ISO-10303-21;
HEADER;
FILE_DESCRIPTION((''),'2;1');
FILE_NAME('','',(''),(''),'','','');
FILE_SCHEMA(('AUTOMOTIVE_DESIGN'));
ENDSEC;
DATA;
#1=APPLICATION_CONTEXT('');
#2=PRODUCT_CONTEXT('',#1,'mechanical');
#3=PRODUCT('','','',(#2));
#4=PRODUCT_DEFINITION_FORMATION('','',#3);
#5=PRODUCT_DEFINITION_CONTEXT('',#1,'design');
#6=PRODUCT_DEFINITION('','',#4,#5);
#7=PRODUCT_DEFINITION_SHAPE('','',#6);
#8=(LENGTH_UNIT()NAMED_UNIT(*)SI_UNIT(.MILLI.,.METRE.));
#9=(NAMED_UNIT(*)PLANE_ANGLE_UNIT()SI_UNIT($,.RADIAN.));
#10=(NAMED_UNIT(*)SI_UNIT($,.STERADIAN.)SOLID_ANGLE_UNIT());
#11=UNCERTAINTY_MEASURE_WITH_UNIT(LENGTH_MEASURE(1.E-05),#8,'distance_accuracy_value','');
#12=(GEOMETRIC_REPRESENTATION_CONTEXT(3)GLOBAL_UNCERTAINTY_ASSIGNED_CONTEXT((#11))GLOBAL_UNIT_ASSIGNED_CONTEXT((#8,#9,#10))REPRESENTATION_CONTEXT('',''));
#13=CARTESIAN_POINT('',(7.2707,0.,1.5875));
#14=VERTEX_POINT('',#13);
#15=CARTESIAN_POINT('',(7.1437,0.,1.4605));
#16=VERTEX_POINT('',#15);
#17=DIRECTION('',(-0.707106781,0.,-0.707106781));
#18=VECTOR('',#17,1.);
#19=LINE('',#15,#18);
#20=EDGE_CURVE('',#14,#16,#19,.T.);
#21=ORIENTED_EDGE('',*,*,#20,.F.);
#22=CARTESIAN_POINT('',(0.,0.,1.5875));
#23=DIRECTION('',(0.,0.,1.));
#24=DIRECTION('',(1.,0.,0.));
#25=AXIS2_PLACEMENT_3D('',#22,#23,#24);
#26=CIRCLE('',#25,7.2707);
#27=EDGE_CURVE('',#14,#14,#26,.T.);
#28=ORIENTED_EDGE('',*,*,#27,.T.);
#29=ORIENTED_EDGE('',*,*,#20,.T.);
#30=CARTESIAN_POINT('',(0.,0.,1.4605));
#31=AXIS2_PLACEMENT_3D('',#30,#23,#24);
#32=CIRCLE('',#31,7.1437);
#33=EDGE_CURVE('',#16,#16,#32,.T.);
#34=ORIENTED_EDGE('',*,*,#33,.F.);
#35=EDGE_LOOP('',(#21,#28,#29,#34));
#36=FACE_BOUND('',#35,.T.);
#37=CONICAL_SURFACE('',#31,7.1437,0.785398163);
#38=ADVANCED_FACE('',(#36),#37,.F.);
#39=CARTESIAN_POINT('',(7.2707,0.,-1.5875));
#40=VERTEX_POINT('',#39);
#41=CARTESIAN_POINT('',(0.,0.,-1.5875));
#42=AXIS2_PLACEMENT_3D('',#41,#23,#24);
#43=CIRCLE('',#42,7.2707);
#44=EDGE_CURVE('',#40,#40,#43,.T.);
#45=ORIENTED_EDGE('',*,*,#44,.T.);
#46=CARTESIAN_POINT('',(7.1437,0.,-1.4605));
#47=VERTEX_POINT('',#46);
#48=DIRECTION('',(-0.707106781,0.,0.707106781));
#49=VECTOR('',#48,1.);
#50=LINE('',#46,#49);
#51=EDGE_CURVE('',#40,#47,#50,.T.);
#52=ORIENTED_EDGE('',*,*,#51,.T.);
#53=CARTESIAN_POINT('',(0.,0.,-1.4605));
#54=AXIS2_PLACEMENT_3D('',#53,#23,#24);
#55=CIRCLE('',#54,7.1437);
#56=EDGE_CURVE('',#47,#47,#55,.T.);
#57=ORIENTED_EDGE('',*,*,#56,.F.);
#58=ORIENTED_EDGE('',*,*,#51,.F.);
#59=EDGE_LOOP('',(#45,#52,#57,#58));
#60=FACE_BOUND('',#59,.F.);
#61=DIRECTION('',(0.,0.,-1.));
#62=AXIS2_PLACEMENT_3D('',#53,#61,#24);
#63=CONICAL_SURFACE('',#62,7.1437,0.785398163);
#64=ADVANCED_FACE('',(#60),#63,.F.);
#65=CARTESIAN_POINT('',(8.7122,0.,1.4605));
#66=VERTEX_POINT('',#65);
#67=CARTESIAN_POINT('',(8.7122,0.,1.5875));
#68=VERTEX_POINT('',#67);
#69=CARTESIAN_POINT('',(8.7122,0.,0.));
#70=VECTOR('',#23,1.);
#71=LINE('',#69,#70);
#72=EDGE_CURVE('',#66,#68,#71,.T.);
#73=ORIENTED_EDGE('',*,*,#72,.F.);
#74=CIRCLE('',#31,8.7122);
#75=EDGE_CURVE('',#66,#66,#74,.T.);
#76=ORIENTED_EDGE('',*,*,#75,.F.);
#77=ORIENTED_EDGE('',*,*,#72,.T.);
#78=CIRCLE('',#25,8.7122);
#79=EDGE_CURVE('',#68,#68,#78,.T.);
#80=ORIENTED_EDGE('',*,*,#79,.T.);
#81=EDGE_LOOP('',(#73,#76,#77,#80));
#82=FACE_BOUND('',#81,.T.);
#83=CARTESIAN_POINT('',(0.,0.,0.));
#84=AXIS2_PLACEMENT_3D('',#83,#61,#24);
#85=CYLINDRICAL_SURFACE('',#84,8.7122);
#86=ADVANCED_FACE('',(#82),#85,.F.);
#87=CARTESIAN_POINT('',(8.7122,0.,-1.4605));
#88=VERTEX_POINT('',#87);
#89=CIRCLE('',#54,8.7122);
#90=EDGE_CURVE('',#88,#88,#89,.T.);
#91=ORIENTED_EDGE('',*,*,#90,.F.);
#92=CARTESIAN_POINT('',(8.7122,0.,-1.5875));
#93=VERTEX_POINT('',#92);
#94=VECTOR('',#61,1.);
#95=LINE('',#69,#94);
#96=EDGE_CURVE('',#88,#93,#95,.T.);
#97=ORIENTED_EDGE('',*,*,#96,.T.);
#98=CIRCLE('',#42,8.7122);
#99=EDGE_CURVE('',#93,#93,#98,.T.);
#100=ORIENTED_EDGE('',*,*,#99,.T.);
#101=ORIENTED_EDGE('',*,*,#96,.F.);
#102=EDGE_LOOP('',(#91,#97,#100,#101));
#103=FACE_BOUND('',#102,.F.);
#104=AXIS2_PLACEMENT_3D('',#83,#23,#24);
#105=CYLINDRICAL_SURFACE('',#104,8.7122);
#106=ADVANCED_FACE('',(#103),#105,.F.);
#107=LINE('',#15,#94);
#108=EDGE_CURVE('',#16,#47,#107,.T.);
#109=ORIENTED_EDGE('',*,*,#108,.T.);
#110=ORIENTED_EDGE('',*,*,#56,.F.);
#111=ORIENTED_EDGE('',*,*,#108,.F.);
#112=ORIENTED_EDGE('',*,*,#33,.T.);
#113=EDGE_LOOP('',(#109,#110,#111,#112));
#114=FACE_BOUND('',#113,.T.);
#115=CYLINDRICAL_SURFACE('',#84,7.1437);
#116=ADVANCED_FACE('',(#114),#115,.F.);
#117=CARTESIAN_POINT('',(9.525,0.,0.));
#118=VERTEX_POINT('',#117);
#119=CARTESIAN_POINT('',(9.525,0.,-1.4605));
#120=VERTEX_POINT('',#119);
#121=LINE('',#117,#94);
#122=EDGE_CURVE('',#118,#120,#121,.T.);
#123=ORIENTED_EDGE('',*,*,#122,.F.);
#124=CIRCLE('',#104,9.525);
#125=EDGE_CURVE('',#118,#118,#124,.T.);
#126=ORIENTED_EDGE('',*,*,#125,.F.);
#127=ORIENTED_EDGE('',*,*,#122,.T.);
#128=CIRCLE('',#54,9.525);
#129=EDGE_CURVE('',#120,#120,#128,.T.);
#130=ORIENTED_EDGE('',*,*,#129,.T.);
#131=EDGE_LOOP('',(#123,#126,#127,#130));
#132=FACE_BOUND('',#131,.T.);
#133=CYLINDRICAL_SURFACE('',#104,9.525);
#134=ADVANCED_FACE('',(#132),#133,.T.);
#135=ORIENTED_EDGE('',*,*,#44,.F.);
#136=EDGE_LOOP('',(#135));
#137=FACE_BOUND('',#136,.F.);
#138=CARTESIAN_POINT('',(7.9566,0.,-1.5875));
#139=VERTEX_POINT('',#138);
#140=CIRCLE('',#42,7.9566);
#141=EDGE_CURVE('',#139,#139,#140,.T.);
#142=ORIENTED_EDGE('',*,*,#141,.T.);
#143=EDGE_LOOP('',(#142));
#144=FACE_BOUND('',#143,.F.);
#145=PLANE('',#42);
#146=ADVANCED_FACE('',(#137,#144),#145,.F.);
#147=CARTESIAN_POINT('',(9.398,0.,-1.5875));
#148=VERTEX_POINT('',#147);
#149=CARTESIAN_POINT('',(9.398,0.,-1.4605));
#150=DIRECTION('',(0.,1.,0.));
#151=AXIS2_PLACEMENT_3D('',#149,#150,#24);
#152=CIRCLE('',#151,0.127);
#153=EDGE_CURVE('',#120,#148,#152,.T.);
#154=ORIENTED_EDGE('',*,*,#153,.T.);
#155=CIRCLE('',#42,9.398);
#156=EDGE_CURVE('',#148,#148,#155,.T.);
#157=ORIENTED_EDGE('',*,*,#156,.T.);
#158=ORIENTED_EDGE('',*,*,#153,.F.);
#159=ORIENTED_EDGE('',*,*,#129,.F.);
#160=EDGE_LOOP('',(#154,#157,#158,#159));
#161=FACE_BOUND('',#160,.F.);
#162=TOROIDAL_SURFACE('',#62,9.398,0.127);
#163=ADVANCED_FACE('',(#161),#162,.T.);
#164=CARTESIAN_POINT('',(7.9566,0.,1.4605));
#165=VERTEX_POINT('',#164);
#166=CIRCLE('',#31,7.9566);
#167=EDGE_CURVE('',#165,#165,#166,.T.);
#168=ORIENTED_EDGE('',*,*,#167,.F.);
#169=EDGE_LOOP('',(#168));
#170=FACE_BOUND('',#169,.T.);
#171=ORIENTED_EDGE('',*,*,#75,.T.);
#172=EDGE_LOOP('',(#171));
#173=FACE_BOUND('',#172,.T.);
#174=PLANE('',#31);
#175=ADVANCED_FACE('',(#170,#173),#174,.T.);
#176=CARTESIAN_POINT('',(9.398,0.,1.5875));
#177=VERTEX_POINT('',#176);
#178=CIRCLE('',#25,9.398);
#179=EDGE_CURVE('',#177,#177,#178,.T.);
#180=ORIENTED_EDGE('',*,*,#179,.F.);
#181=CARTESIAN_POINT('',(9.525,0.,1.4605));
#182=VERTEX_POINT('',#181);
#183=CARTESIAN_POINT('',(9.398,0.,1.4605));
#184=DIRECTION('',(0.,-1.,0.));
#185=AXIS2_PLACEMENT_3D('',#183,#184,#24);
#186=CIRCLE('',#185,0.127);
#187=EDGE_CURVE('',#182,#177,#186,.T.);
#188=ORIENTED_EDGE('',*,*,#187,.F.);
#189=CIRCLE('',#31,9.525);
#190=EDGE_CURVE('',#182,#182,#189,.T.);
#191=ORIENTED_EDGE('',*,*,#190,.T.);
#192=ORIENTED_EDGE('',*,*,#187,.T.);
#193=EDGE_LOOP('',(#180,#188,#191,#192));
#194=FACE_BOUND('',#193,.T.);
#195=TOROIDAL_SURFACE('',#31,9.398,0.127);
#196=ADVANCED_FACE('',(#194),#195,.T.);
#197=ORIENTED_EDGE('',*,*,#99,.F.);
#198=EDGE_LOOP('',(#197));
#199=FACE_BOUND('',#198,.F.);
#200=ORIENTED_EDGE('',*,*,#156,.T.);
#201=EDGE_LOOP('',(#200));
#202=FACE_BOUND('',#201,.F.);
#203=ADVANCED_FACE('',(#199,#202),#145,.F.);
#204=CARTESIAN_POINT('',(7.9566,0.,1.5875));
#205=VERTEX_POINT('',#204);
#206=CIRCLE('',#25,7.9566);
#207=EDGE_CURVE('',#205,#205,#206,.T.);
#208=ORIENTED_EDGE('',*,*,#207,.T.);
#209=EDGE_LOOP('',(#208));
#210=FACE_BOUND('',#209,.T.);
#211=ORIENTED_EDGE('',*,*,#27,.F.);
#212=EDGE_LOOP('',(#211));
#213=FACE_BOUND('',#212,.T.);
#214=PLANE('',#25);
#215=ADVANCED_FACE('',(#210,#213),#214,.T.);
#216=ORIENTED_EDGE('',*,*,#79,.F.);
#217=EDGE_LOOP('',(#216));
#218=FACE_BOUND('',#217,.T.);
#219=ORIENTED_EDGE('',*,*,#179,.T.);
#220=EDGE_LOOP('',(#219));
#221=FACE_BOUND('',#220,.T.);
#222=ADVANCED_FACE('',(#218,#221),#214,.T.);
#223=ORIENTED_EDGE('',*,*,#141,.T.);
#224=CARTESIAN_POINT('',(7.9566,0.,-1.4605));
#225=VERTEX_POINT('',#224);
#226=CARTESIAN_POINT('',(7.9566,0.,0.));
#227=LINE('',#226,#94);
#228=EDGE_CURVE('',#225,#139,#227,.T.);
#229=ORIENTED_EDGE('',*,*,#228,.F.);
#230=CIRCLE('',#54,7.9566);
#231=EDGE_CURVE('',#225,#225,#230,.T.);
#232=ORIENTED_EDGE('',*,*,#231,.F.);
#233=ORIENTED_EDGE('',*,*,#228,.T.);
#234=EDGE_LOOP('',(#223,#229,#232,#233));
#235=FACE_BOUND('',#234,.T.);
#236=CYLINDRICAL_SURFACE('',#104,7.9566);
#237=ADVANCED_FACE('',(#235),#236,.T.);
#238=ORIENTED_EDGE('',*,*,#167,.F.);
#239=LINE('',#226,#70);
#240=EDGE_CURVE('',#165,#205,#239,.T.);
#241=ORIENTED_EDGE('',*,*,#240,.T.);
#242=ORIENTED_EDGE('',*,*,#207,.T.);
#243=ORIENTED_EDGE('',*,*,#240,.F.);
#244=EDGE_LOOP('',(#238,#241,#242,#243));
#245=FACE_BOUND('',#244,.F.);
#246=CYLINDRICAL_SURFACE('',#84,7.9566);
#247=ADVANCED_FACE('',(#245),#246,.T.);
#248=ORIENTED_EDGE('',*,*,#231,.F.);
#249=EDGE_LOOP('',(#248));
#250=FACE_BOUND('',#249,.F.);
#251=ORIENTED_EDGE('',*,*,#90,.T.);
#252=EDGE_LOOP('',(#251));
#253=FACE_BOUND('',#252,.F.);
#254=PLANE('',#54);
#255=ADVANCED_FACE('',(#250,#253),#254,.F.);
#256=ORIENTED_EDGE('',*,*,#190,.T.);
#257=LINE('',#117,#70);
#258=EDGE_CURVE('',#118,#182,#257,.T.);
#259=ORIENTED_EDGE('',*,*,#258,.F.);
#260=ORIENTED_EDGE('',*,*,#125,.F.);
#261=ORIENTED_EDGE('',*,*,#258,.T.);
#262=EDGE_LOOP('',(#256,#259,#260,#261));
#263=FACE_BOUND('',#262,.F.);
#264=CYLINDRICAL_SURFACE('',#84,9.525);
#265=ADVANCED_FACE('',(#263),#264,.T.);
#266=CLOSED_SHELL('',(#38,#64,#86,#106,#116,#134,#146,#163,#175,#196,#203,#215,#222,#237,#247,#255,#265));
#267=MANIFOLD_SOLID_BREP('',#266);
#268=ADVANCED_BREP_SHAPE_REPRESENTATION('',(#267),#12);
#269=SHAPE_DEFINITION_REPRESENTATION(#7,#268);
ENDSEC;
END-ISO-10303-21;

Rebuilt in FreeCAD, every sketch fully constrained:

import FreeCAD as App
import Part
import Sketcher
from FreeCAD import Vector
Q = App.Units.Quantity


def edges_at(feature, points):
    """Names of the edges that pass closest to the given points."""
    edges = feature.Shape.Edges
    near = lambda p: min(range(len(edges)), key=lambda i: edges[i].distToShape(Part.Vertex(*p))[0])
    return sorted({f"Edge{near(p) + 1}" for p in points})

doc = App.newDocument("Part")
body = doc.addObject("PartDesign::Body", "Body")
body.AllowCompound = True

sketch1 = doc.addObject("Sketcher::SketchObject", "Sketch")
body.addObject(sketch1)
sketch1.AttachmentSupport = (doc.XY_Plane, [""])
sketch1.MapMode = "FlatFace"
sketch1.addGeometry([
    Part.Circle(Vector(0, 0, 0), Vector(0, 0, 1), 7.9566),
    Part.Circle(Vector(0, 0, 0), Vector(0, 0, 1), 7.1437),
    Part.Circle(Vector(0, 0, 0), Vector(0, 0, 1), 9.525),
    Part.Circle(Vector(0, 0, 0), Vector(0, 0, 1), 8.7122),
], False)
sketch1.addConstraint([
    Sketcher.Constraint("Coincident", 0, 3, -1, 1),
    Sketcher.Constraint("Coincident", 1, 3, -1, 1),
    Sketcher.Constraint("Coincident", 2, 3, -1, 1),
    Sketcher.Constraint("Coincident", 3, 3, -1, 1),
    Sketcher.Constraint("Diameter", 2, Q("0.75 in")),
    Sketcher.Constraint("Diameter", 1, Q("0.5625 in")),
    Sketcher.Constraint("Diameter", 3, Q("0.686 in")),
    Sketcher.Constraint("Diameter", 0, Q("0.6265 in")),
])
pad1 = doc.addObject("PartDesign::Pad", "Pad")
body.addObject(pad1)
pad1.Profile = sketch1
pad1.Length = Q("0.125 in")
pad1.Midplane = True
doc.recompute()

fillet = doc.addObject("PartDesign::Fillet", "Fillet")
body.addObject(fillet)
fillet.Base = (pad1, edges_at(pad1, [(-9.525, 0, 1.587), (-9.525, 0, -1.587)]))
fillet.Radius = Q("0.005 in")
doc.recompute()

chamfer = doc.addObject("PartDesign::Chamfer", "Chamfer")
body.addObject(chamfer)
chamfer.Base = (fillet, edges_at(fillet, [(-7.144, 0, 1.587), (-7.144, 0, -1.587)]))
chamfer.Size = Q("0.005 in")

sketch2 = doc.addObject("Sketcher::SketchObject", "Sketch001")
body.addObject(sketch2)
sketch2.AttachmentSupport = (doc.XY_Plane, [""])
sketch2.MapMode = "FlatFace"
sketch2.addGeometry([
    Part.Circle(Vector(0, 0, 0), Vector(0, 0, 1), 8.7122),
    Part.Circle(Vector(0, 0, 0), Vector(0, 0, 1), 7.9566),
], False)
sketch2.addConstraint([
    Sketcher.Constraint("Coincident", 0, 3, -1, 1),
    Sketcher.Constraint("Coincident", 1, 3, -1, 1),
    Sketcher.Constraint("Diameter", 0, Q("0.686 in")),
    Sketcher.Constraint("Diameter", 1, Q("0.6265 in")),
])
pad2 = doc.addObject("PartDesign::Pad", "Pad001")
body.addObject(pad2)
pad2.Profile = sketch2
pad2.Length = Q("0.115 in")
pad2.Midplane = True

doc.recompute()
